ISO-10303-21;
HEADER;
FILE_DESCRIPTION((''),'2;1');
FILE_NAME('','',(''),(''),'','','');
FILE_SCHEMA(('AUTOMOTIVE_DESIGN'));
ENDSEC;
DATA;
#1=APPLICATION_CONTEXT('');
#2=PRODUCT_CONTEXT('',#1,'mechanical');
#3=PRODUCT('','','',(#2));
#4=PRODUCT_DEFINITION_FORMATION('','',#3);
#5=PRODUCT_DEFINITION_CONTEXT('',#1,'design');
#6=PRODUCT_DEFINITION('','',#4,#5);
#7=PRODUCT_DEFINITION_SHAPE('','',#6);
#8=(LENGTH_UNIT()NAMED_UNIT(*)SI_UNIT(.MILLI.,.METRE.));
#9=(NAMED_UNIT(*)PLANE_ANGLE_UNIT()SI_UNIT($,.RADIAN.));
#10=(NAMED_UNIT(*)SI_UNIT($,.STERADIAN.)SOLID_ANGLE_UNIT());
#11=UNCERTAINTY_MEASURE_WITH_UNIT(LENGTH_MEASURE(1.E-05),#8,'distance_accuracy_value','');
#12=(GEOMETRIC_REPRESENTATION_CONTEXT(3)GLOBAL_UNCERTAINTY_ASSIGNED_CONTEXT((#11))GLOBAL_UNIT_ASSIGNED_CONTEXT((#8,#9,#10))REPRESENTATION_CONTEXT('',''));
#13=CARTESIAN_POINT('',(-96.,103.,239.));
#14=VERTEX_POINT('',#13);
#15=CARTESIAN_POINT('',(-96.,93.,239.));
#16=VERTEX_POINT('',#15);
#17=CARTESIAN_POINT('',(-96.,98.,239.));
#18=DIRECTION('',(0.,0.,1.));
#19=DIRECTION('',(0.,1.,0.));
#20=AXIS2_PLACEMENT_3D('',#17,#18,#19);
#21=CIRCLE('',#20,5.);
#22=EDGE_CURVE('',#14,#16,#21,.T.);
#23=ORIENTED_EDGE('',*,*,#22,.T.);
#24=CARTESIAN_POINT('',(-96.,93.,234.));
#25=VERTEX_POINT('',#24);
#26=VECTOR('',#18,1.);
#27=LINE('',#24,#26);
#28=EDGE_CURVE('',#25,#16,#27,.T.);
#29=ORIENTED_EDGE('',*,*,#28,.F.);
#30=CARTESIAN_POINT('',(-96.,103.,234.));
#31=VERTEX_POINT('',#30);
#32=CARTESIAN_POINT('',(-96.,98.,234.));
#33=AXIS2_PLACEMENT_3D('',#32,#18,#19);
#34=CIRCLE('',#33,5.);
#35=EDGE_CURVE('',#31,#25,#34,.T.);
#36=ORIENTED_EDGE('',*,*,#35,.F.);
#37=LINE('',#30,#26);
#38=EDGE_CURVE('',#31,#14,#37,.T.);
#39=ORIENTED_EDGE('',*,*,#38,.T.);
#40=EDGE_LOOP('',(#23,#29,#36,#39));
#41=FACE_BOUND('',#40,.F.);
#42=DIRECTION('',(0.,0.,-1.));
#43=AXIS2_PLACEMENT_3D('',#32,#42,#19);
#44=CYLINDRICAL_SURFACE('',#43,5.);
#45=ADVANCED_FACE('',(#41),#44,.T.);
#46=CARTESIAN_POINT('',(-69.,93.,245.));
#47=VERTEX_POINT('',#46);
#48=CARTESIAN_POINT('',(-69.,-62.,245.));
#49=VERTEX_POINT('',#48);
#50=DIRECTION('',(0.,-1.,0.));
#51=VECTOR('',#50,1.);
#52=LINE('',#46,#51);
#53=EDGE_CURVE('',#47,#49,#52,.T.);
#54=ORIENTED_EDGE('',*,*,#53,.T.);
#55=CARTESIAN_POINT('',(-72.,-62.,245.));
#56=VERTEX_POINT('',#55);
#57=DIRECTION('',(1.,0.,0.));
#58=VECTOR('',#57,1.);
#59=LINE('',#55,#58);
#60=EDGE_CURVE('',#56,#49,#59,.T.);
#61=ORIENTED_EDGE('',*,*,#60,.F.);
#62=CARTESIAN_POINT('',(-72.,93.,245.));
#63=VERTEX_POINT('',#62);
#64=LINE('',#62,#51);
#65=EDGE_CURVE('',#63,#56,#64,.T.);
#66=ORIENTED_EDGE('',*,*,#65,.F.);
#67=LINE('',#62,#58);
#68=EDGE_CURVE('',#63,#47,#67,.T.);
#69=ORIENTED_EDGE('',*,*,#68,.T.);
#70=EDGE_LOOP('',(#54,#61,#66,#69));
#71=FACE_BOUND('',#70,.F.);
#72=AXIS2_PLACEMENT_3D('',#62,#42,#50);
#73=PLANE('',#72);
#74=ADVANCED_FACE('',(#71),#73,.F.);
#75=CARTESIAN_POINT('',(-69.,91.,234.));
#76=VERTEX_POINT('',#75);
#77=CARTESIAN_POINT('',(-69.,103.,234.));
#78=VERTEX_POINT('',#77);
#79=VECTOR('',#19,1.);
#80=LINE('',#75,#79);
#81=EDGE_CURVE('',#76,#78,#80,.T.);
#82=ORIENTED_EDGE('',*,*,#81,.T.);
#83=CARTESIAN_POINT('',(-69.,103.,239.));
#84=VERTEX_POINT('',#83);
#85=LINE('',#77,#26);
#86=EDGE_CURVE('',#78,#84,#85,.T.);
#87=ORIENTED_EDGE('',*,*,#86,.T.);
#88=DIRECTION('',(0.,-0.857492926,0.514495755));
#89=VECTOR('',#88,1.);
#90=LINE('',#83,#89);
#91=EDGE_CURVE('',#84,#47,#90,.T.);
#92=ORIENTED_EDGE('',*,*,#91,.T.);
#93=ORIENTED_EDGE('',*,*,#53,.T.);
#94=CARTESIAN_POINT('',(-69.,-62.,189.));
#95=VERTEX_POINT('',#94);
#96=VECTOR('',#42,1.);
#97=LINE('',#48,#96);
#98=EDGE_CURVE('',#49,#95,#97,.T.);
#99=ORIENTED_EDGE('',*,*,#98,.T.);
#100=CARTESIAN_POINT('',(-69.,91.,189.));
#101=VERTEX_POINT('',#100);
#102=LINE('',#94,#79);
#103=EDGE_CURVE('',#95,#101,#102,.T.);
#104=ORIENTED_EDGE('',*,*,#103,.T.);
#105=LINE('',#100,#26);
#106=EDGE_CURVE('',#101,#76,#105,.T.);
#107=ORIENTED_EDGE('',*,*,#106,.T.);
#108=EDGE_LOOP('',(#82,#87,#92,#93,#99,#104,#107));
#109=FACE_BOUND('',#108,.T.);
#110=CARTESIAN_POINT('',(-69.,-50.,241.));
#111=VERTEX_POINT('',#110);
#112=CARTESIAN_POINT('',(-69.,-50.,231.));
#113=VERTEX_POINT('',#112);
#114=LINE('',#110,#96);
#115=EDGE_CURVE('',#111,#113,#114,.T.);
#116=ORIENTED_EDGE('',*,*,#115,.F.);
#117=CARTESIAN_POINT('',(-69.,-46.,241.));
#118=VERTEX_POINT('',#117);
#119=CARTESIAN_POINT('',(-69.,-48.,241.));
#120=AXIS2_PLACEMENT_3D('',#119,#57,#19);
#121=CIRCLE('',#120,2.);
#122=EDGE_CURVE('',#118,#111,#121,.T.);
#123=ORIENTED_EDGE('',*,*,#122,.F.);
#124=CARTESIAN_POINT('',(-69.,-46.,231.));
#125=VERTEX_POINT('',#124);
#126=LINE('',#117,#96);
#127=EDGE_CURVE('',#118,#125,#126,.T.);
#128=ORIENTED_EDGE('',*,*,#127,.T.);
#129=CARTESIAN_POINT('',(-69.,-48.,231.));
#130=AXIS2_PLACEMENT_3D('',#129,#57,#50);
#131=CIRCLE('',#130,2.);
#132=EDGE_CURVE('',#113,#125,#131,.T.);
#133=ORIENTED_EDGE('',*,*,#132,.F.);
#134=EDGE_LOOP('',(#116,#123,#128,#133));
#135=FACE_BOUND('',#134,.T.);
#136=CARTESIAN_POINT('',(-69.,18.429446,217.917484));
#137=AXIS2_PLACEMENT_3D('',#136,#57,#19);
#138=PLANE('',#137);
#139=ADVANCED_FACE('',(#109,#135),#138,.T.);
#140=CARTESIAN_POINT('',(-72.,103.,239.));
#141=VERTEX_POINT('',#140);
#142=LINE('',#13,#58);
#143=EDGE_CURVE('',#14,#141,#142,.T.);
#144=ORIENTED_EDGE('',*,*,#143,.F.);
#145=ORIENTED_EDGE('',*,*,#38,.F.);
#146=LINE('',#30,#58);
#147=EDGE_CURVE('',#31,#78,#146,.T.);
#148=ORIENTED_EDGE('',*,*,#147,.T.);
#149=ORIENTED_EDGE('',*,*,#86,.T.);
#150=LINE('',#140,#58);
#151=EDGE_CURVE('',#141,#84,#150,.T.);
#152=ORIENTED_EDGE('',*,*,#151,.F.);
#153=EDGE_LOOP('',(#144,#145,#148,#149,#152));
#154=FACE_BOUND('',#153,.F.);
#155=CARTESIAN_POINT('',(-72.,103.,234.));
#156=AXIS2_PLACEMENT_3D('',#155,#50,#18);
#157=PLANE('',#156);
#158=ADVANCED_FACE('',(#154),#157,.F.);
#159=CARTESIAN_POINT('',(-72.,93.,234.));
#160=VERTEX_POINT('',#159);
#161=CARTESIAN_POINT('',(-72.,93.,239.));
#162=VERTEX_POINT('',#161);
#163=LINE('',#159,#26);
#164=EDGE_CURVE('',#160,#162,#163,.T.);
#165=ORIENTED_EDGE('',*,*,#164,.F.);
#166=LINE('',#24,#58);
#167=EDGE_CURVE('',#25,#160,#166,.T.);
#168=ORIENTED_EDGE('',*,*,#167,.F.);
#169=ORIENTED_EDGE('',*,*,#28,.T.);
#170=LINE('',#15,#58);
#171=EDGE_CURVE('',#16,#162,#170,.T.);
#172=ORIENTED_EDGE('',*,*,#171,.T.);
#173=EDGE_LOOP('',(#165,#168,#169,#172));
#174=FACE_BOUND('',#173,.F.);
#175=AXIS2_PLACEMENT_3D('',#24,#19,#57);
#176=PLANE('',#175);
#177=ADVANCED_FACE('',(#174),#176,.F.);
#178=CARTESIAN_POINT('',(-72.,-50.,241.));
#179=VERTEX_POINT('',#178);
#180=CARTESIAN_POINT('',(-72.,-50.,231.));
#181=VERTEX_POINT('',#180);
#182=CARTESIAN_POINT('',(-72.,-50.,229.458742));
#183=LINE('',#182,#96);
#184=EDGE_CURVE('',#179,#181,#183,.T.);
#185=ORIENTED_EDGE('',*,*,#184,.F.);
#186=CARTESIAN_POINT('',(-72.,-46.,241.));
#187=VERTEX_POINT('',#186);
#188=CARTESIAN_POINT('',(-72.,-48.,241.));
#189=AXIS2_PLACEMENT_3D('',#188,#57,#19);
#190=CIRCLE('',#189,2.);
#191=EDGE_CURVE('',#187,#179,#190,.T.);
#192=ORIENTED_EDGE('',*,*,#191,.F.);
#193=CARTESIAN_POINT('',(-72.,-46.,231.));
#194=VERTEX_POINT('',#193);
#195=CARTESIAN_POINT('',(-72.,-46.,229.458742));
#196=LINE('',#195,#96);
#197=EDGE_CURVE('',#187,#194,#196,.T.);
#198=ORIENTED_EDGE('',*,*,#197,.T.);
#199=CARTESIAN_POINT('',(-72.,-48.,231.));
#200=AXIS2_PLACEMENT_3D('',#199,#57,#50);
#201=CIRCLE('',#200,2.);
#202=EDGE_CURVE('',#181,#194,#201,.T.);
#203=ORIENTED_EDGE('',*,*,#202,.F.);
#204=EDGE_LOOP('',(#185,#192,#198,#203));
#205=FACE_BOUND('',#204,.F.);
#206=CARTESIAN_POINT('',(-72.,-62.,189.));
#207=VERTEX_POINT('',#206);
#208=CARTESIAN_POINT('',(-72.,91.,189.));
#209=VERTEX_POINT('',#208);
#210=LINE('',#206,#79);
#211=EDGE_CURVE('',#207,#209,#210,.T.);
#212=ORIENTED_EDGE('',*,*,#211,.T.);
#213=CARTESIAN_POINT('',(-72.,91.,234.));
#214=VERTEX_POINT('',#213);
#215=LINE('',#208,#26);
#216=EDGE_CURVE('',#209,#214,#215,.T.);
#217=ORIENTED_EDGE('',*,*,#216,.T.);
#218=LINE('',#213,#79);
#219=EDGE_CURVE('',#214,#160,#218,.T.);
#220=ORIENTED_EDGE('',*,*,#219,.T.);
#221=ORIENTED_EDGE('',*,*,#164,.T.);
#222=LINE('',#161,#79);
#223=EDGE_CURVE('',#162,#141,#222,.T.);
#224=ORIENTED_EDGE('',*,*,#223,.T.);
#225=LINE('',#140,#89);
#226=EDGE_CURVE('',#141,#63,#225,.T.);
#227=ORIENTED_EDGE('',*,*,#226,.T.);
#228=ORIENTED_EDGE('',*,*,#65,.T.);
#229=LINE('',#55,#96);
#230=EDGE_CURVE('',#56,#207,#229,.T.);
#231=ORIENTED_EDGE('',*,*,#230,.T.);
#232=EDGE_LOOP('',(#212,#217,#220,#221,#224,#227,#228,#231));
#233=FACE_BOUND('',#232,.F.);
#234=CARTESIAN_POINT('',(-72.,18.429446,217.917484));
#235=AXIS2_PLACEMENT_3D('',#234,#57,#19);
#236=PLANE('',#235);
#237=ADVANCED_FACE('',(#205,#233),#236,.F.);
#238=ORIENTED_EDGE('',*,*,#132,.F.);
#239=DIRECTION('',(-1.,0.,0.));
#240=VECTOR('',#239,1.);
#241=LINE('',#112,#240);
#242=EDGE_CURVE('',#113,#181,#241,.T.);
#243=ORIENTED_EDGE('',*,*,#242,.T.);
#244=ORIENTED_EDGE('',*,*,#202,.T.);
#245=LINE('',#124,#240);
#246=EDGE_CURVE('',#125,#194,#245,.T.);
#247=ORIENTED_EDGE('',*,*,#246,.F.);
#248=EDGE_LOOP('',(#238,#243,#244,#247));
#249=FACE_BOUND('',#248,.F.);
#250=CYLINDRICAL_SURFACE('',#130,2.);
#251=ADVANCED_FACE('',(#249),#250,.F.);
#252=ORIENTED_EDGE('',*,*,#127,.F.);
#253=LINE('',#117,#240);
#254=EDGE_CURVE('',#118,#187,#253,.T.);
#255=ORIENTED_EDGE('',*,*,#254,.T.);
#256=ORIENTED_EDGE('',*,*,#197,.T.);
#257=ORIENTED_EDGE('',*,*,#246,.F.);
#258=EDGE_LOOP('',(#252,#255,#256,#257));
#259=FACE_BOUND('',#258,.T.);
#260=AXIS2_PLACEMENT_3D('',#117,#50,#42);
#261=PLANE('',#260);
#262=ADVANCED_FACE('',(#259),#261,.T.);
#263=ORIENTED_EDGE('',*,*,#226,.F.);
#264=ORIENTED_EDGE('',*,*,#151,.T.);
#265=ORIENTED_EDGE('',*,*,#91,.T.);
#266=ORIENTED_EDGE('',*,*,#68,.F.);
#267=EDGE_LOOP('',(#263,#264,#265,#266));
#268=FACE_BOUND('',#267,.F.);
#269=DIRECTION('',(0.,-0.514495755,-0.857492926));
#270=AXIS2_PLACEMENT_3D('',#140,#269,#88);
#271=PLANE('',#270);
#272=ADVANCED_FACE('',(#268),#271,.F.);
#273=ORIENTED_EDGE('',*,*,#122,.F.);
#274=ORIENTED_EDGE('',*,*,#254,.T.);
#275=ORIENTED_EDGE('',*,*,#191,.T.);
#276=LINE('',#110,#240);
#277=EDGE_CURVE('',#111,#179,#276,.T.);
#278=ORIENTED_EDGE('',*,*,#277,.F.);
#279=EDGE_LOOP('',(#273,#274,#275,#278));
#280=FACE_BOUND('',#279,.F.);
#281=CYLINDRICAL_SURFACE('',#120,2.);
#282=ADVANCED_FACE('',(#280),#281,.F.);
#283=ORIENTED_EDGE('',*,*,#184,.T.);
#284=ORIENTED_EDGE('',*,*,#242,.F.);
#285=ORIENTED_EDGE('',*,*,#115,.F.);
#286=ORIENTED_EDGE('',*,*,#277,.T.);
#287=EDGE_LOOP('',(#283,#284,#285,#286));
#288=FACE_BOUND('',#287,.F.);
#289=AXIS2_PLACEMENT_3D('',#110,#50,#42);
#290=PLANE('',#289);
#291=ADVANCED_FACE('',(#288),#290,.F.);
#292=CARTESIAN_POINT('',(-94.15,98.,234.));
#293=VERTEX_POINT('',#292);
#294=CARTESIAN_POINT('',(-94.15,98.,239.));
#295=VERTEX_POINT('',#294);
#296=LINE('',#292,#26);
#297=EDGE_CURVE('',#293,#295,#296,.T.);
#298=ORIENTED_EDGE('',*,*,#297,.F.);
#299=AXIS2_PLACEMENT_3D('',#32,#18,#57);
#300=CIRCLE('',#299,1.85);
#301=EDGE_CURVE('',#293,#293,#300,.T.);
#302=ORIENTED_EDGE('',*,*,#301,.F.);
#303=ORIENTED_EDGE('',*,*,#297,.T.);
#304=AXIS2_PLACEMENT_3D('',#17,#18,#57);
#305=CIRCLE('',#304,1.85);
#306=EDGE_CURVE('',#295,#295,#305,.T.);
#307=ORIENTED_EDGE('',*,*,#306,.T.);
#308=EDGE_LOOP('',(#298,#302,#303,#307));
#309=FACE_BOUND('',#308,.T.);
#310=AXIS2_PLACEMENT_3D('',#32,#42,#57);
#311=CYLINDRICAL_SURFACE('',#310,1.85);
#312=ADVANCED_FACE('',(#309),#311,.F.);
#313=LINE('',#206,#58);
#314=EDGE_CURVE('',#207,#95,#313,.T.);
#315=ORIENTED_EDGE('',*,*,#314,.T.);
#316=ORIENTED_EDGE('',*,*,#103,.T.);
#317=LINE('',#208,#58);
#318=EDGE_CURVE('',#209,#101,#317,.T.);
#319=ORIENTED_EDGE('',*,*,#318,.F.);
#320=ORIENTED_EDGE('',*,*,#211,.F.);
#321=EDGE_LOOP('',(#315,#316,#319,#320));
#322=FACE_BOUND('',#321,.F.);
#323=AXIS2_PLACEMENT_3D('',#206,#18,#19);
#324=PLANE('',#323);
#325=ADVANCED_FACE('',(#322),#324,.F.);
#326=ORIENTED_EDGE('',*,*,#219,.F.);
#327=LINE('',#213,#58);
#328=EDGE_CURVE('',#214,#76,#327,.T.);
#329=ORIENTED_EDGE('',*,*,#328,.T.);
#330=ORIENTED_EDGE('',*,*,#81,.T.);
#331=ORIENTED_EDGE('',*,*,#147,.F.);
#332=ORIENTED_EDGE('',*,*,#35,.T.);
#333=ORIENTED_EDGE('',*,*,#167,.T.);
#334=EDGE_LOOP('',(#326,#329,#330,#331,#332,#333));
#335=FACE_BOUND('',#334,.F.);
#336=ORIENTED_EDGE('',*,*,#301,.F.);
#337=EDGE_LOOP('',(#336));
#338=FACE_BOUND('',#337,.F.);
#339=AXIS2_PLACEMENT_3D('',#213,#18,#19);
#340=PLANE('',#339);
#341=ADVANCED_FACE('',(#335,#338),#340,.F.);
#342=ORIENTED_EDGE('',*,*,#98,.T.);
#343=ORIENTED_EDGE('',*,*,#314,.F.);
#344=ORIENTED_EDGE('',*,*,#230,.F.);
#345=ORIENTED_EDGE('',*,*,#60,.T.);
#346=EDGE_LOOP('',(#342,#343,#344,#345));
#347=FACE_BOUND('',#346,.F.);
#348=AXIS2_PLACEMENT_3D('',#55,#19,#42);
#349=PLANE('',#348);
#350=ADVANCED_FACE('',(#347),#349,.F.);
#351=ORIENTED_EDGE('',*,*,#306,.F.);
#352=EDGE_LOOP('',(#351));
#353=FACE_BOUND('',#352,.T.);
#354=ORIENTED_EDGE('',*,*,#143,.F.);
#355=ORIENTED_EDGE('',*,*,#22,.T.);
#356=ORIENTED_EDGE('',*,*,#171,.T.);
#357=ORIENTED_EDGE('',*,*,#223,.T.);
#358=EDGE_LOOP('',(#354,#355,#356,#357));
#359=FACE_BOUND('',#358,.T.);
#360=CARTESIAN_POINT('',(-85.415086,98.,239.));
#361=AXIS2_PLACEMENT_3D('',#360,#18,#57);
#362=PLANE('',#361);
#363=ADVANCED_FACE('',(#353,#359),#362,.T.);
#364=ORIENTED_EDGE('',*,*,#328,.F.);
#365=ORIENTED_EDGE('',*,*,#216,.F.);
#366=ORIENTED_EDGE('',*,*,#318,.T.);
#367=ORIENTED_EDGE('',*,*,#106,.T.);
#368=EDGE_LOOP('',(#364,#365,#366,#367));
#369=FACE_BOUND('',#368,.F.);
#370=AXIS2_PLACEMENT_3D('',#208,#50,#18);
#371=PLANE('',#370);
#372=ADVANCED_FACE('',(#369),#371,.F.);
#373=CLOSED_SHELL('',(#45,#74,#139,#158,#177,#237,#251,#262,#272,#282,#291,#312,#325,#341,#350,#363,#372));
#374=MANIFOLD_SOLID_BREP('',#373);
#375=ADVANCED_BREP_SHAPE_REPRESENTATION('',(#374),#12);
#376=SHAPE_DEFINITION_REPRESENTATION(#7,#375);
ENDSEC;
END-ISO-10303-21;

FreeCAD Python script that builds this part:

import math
import FreeCAD as App
import Part
import Sketcher

V = App.Vector


def add_polygon(sketch, points):
    """Adds a closed chain of lines whose ends are joined by coincident constraints."""
    first, n = sketch.GeometryCount, len(points)
    for a, b in zip(points, points[1:] + points[:1]):
        sketch.addGeometry(Part.LineSegment(App.Vector(*a, 0), App.Vector(*b, 0)), False)
    for i in range(n):
        sketch.addConstraint(Sketcher.Constraint("Coincident", first + i, 2, first + (i + 1) % n, 1))

doc = App.newDocument("Part")
body = doc.addObject("PartDesign::Body", "Body")

sketch1 = doc.addObject("Sketcher::SketchObject", "Sketch")
body.addObject(sketch1)
sketch1.AttachmentSupport = (doc.XY_Plane, [""])
sketch1.MapMode = "FlatFace"
sketch1.addGeometry(Part.ArcOfCircle(Part.Circle(V(0, 0, 0), V(0, 0, 1), 5), math.radians(90), math.radians(270)), False)
sketch1.addGeometry(Part.LineSegment(V(0, -5, 0), V(24, -5, 0)), False)
sketch1.addGeometry(Part.LineSegment(V(24, -5, 0), V(24, 5, 0)), False)
sketch1.addGeometry(Part.LineSegment(V(24, 5, 0), V(0, 5, 0)), False)
sketch1.addGeometry(Part.Circle(V(0, 0, 0), V(0, 0, 1), 1.9), False)
sketch1.addConstraint(Sketcher.Constraint("Tangent", 0, 2, 1, 1))
sketch1.addConstraint(Sketcher.Constraint("Coincident", 1, 2, 2, 1))
sketch1.addConstraint(Sketcher.Constraint("Coincident", 2, 2, 3, 1))
sketch1.addConstraint(Sketcher.Constraint("Tangent", 3, 2, 0, 1))
sketch1.addConstraint(Sketcher.Constraint("Horizontal", 1))
sketch1.addConstraint(Sketcher.Constraint("Vertical", 2))
sketch1.addConstraint(Sketcher.Constraint("Horizontal", 3))
sketch1.addConstraint(Sketcher.Constraint("Coincident", 0, 3, -1, 1))
sketch1.addConstraint(Sketcher.Constraint("Coincident", 4, 3, -1, 1))
sketch1.addConstraint(Sketcher.Constraint("Radius", 0, 5.0))
sketch1.addConstraint(Sketcher.Constraint("Diameter", 4, 3.7))
sketch1.addConstraint(Sketcher.Constraint("DistanceX", 1, 1, 1, 2, 24.0))
pad1 = doc.addObject("PartDesign::Pad", "Pad")
body.addObject(pad1)
pad1.Profile = sketch1
pad1.Length = 5

sketch2 = doc.addObject("Sketcher::SketchObject", "Sketch001")
body.addObject(sketch2)
sketch2.AttachmentSupport = (doc.YZ_Plane, [""])
sketch2.MapMode = "FlatFace"
sketch2.AttachmentOffset = App.Placement(V(0, 0, 24), App.Rotation())
add_polygon(sketch2, [(-7, 0), (5, 0), (5, 5), (-5, 11), (-160, 11), (-160, -45), (-7, -45)])
sketch2.addConstraint(Sketcher.Constraint("Horizontal", 0))
sketch2.addConstraint(Sketcher.Constraint("Vertical", 1))
sketch2.addConstraint(Sketcher.Constraint("Horizontal", 3))
sketch2.addConstraint(Sketcher.Constraint("Vertical", 4))
sketch2.addConstraint(Sketcher.Constraint("Horizontal", 5))
sketch2.addConstraint(Sketcher.Constraint("Vertical", 6))
sketch2.addConstraint(Sketcher.Constraint("PointOnObject", 0, 2, -1))
sketch2.addConstraint(Sketcher.Constraint("DistanceX", 0, 1, 0, 2, 12.0))
sketch2.addConstraint(Sketcher.Constraint("DistanceX", 3, 2, 3, 1, 155.0))
sketch2.addConstraint(Sketcher.Constraint("DistanceX", 5, 1, 5, 2, 153.0))
sketch2.addConstraint(Sketcher.Constraint("DistanceY", 1, 1, 1, 2, 5.0))
sketch2.addConstraint(Sketcher.Constraint("DistanceY", 4, 2, 4, 1, 56.0))
sketch2.addConstraint(Sketcher.Constraint("DistanceY", 6, 1, 6, 2, 45.0))
sketch2.addConstraint(Sketcher.Constraint("DistanceX", -1, 1, 0, 2, 5.0))
pad2 = doc.addObject("PartDesign::Pad", "Pad001")
body.addObject(pad2)
pad2.Profile = sketch2
pad2.Length = 3

sketch3 = doc.addObject("Sketcher::SketchObject", "Sketch002")
body.addObject(sketch3)
sketch3.AttachmentSupport = (doc.YZ_Plane, [""])
sketch3.MapMode = "FlatFace"
sketch3.AttachmentOffset = App.Placement(V(0, 0, 27), App.Rotation())
sketch3.addGeometry(Part.ArcOfCircle(Part.Circle(V(-146, 7, 0), V(0, 0, 1), 2), math.radians(0), math.radians(180)), False)
sketch3.addGeometry(Part.LineSegment(V(-148, 7, 0), V(-148, -3, 0)), False)
sketch3.addGeometry(Part.ArcOfCircle(Part.Circle(V(-146, -3, 0), V(0, 0, 1), 2), math.radians(180), math.radians(360)), False)
sketch3.addGeometry(Part.LineSegment(V(-144, -3, 0), V(-144, 7, 0)), False)
sketch3.addConstraint(Sketcher.Constraint("Tangent", 0, 2, 1, 1))
sketch3.addConstraint(Sketcher.Constraint("Tangent", 1, 2, 2, 1))
sketch3.addConstraint(Sketcher.Constraint("Tangent", 2, 2, 3, 1))
sketch3.addConstraint(Sketcher.Constraint("Tangent", 3, 2, 0, 1))
sketch3.addConstraint(Sketcher.Constraint("Vertical", 1))
sketch3.addConstraint(Sketcher.Constraint("Vertical", 3))
sketch3.addConstraint(Sketcher.Constraint("Radius", 0, 2.0))
sketch3.addConstraint(Sketcher.Constraint("DistanceY", 1, 2, 1, 1, 10.0))
sketch3.addConstraint(Sketcher.Constraint("DistanceX", 0, 3, -1, 1, 146.0))
sketch3.addConstraint(Sketcher.Constraint("DistanceY", -1, 1, 0, 3, 7.0))
pocket1 = doc.addObject("PartDesign::Pocket", "Pocket")
body.addObject(pocket1)
pocket1.Profile = sketch3
pocket1.Length = 5
body2 = doc.addObject("PartDesign::Body", "Body001")
doc.recompute()

body.Placement = App.Placement(V(-96, 98, 234), App.Rotation(V(0, 0, 1), 0))
boolean = doc.addObject("PartDesign::Boolean", "Boolean")
body2.addObject(boolean)
boolean.Type = "Fuse"
boolean.addObjects([body])

doc.recompute()
